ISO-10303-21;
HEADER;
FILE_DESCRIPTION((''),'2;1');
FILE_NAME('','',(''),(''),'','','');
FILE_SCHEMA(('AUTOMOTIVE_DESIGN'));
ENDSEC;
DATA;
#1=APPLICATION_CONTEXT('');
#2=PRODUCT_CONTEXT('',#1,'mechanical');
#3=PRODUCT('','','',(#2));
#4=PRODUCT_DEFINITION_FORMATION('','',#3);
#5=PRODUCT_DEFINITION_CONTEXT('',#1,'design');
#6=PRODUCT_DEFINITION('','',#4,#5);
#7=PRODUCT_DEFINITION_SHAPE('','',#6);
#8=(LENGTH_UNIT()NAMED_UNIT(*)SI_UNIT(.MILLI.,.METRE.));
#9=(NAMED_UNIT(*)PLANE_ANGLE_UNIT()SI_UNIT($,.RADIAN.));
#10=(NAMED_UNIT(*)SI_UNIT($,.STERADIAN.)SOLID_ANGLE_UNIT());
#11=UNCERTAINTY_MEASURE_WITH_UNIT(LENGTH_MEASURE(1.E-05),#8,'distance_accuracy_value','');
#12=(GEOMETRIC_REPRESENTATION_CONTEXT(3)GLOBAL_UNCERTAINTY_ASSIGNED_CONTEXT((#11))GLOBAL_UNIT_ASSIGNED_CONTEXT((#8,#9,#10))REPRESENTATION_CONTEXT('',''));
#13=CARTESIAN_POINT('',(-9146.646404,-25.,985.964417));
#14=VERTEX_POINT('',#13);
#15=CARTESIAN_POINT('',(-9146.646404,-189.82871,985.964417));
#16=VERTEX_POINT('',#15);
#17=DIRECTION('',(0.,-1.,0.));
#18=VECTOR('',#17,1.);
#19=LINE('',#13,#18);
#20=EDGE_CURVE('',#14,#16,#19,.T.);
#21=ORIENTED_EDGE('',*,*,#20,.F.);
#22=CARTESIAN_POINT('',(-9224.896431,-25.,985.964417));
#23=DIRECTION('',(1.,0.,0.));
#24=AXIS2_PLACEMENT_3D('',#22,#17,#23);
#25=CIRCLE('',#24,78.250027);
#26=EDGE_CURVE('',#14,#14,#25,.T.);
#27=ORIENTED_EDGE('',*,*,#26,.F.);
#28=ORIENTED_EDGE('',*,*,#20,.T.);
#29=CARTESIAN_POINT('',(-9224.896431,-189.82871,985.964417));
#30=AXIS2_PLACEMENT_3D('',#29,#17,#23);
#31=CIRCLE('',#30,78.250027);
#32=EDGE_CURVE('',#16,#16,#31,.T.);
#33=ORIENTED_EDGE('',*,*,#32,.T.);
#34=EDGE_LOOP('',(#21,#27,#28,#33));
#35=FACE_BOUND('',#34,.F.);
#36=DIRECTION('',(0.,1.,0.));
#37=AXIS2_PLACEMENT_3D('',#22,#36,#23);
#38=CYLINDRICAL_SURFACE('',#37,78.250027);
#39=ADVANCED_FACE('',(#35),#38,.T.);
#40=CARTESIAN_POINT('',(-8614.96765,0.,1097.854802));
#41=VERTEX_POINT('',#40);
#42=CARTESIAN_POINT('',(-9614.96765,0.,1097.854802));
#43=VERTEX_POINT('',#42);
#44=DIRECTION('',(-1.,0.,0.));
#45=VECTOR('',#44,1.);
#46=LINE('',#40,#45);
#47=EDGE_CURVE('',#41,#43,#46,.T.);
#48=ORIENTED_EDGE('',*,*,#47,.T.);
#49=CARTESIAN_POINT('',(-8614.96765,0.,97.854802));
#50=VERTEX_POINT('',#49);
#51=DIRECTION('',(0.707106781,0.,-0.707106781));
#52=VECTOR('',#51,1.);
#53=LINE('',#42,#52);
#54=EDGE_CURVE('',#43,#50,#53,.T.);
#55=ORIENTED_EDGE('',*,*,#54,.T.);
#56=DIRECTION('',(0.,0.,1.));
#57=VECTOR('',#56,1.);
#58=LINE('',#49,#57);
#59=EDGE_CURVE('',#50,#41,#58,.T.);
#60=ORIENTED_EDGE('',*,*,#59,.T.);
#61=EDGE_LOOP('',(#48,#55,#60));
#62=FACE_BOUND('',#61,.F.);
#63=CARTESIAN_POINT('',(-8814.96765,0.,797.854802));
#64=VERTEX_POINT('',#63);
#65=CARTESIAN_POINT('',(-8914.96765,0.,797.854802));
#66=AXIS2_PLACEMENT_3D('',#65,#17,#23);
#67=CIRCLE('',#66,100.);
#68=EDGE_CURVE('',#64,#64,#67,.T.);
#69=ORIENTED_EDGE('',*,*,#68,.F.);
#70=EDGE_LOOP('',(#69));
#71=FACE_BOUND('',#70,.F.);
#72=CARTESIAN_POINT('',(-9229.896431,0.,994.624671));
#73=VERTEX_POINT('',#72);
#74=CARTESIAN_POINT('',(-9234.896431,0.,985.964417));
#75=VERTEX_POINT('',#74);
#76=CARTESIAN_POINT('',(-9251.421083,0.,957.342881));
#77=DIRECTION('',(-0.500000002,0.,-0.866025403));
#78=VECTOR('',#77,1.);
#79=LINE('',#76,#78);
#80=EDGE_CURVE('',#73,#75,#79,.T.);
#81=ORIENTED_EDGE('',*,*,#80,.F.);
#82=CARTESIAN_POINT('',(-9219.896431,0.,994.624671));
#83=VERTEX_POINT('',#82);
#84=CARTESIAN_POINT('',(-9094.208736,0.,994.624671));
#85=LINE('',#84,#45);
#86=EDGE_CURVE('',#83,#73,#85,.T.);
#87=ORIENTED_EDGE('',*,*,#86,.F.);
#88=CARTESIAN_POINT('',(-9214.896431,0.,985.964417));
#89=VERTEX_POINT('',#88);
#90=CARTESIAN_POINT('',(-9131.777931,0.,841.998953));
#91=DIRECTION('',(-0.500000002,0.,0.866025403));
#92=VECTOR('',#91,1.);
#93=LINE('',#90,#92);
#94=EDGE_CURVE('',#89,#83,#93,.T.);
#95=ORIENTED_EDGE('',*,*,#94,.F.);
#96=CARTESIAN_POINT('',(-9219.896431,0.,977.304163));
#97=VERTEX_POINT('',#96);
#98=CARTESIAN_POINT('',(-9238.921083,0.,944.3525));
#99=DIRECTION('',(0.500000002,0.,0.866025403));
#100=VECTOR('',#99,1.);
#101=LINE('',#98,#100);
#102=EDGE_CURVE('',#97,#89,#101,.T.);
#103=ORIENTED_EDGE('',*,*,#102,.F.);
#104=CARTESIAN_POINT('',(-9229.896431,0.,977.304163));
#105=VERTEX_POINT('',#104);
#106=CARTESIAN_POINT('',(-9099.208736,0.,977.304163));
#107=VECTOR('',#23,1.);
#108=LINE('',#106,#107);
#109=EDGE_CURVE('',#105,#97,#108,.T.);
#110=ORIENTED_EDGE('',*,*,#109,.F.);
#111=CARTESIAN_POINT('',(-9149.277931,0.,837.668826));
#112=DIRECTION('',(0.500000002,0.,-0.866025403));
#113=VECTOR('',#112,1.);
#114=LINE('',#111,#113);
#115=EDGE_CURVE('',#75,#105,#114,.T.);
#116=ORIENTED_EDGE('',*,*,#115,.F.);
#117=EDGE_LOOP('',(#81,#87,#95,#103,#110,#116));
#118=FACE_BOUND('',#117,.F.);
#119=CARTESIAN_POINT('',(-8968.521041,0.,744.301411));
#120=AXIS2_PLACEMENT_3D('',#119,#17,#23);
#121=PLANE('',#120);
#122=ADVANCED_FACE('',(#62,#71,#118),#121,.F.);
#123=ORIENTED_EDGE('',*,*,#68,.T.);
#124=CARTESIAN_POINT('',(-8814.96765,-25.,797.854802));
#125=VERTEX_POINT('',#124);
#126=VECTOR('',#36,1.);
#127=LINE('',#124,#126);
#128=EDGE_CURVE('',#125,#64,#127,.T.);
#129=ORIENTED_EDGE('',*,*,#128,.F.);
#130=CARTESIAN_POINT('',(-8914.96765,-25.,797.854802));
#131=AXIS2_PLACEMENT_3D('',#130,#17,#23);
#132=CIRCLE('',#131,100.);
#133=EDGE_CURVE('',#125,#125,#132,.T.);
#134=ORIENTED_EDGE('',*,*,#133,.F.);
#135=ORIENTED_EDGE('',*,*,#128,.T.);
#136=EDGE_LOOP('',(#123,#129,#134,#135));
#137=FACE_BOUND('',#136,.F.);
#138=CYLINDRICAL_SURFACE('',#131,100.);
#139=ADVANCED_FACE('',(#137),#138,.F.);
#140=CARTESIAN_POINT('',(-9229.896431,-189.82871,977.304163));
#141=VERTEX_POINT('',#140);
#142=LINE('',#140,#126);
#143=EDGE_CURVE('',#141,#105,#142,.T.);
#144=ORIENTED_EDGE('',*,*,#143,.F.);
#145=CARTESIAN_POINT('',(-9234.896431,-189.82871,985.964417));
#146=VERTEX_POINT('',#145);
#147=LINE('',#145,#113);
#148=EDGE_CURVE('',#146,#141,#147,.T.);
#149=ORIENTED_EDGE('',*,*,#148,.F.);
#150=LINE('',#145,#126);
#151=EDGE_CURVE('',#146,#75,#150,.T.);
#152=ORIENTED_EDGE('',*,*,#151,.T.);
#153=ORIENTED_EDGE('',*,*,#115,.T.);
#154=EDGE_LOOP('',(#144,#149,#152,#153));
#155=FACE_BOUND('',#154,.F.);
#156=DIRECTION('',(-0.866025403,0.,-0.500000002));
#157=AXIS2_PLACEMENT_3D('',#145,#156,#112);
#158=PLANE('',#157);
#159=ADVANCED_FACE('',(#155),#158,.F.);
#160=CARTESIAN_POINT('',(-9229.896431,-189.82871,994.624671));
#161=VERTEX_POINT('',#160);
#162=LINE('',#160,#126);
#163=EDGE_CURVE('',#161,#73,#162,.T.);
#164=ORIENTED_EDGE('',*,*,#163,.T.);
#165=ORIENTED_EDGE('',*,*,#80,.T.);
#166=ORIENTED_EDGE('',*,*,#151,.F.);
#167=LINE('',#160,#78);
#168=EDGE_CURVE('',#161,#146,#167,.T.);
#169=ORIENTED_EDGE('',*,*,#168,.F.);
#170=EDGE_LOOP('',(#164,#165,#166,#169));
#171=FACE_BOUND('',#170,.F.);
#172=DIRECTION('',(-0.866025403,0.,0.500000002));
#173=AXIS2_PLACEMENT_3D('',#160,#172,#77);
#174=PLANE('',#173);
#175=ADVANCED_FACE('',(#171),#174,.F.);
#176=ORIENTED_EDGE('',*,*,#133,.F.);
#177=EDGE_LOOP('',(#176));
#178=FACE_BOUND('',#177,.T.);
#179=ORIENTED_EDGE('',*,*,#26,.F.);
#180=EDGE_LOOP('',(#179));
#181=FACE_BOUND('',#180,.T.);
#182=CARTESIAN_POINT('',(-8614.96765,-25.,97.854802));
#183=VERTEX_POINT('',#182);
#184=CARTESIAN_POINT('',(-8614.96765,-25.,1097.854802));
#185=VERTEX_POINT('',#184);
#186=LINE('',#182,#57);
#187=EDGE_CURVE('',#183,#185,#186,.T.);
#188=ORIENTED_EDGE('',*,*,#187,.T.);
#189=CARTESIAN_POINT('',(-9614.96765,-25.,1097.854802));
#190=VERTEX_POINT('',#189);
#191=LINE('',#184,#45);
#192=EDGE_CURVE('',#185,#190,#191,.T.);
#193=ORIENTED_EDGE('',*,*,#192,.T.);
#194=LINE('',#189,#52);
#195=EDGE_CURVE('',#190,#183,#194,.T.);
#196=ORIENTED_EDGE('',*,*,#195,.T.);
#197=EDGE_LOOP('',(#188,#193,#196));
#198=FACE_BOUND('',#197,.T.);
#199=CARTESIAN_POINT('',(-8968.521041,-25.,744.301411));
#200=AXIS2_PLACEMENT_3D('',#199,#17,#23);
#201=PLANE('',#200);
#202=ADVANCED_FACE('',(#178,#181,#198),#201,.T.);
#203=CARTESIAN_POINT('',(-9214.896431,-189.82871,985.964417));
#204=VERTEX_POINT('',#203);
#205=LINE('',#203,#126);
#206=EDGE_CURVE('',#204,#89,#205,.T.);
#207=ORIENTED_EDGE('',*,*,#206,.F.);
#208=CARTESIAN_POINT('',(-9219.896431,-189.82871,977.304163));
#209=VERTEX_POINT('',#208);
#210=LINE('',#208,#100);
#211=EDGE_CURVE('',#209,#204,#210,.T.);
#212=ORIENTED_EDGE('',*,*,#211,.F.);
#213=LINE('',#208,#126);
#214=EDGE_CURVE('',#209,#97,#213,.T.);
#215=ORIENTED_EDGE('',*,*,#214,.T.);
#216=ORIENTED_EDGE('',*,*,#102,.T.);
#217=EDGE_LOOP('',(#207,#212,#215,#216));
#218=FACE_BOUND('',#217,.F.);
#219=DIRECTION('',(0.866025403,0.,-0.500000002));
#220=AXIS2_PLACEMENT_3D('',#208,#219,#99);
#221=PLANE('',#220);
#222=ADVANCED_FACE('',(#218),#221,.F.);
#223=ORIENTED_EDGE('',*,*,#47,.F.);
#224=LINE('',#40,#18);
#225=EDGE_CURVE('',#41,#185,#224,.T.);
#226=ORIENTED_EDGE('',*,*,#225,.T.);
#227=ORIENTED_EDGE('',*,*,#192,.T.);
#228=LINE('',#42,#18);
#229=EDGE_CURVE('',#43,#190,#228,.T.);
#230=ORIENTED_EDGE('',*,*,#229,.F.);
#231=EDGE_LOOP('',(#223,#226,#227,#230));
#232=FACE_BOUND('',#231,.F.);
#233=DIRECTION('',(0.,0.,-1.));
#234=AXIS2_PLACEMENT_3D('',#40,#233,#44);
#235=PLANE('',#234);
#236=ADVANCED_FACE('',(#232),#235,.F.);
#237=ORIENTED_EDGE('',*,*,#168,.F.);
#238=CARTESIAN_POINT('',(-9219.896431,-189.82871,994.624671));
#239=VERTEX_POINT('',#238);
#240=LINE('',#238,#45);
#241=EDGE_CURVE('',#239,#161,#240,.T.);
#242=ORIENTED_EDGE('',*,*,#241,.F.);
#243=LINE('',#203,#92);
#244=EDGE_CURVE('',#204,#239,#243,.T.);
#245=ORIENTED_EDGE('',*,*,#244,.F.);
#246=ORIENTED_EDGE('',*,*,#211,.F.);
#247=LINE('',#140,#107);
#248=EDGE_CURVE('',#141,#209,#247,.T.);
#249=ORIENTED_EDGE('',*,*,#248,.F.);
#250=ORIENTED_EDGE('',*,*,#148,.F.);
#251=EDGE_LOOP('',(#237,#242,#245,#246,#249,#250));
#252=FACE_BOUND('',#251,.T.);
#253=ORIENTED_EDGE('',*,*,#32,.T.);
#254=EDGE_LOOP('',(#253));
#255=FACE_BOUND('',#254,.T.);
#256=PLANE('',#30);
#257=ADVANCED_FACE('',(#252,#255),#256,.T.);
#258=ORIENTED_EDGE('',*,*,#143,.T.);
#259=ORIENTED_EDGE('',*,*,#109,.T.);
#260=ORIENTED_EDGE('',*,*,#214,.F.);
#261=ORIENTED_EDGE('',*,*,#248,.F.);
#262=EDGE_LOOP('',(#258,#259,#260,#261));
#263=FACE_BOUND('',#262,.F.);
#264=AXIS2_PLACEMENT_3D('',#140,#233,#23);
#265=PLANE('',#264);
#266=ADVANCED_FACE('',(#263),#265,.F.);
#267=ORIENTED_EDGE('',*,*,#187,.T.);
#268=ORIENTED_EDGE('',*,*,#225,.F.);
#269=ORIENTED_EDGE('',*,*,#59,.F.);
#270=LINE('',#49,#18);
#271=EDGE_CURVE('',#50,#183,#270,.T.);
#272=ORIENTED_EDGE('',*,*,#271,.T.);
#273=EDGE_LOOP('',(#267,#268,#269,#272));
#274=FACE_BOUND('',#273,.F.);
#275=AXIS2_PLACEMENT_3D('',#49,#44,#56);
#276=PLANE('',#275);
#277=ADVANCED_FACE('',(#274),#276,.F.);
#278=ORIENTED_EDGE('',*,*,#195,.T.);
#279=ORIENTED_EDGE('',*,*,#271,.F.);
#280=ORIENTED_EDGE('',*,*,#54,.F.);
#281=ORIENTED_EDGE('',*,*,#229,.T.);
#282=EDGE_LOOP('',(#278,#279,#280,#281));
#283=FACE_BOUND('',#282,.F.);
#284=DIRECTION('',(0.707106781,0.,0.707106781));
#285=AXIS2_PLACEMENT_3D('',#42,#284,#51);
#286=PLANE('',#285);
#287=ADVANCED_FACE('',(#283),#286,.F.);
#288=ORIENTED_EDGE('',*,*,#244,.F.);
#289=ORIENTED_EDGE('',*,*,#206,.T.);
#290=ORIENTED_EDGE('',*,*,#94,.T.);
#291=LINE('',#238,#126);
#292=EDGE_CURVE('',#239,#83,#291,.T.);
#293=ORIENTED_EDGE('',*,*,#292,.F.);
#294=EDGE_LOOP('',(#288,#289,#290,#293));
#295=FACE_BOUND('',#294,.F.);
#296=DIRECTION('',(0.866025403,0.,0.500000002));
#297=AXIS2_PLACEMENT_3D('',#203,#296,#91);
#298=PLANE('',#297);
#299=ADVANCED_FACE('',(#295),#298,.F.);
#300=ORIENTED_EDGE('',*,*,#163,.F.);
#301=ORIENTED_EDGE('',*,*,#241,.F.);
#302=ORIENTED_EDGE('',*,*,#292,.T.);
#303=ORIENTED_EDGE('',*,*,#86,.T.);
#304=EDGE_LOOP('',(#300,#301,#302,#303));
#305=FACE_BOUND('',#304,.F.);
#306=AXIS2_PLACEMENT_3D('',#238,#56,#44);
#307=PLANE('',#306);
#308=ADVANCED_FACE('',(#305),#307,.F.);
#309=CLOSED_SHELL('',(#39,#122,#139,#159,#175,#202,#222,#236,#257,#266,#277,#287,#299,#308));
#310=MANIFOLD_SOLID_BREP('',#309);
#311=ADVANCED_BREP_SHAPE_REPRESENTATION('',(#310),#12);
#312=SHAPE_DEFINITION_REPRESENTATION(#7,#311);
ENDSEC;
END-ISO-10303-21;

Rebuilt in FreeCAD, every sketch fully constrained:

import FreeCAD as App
import Part
import Sketcher
from FreeCAD import Vector
Q = App.Units.Quantity


def add_polygon(sketch, points):
    """Adds a closed chain of lines whose ends are joined by coincident constraints."""
    first, n = sketch.GeometryCount, len(points)
    for a, b in zip(points, points[1:] + points[:1]):
        sketch.addGeometry(Part.LineSegment(App.Vector(*a, 0), App.Vector(*b, 0)), False)
    for i in range(n):
        sketch.addConstraint(Sketcher.Constraint("Coincident", first + i, 2, first + (i + 1) % n, 1))

doc = App.newDocument("Part")
params = doc.addObject("Spreadsheet::Sheet", "Params")
for row, (alias, value) in enumerate([
    ("sketch1_width", "1000 mm"),
    ("pad1_length", "25 mm"),
    ("sketch2_diameter", "200 mm"),
    ("pad2_length", "164.82871 mm"),
    ("sketch4_width", "10 mm"),
    ("sketch4_length", "10 mm"),
], start=1):
    params.set(f"A{row}", alias)
    params.set(f"B{row}", "=" + value)
    params.setAlias(f"B{row}", alias)

body = doc.addObject("PartDesign::Body", "Body")

sketch1 = body.newObject("Sketcher::SketchObject", "Sketch")
sketch1.AttachmentSupport = (doc.getObject("XZ_Plane"), [""])
sketch1.MapMode = "FlatFace"
add_polygon(sketch1, [(-8615, 1098), (-9615, 1098), (-8615, 98)])
sketch1.addConstraint([
    Sketcher.Constraint("Horizontal", 0),
    Sketcher.Constraint("Vertical", 2),
    Sketcher.Constraint("Equal", 0, 2),
    Sketcher.Constraint("DistanceX", 0, 2, 0, 1, Q("1000 mm")),
    Sketcher.Constraint("DistanceY", -1, 1, 0, 2, Q("1097.854802 mm")),
    Sketcher.Constraint("DistanceX", 0, 2, -1, 1, Q("9614.96765 mm")),
])
sketch1.setExpression("Constraints[6]", "Params.sketch1_width")
pad1 = body.newObject("PartDesign::Pad", "Pad")
pad1.Profile = sketch1
pad1.setExpression("Length", "Params.pad1_length")

sketch2 = body.newObject("Sketcher::SketchObject", "Sketch001")
sketch2.AttachmentSupport = (doc.getObject("XZ_Plane"), [""])
sketch2.MapMode = "FlatFace"
sketch2.AttachmentOffset = App.Placement(Vector(0, 0, 25), App.Rotation())
sketch2.addGeometry(Part.Circle(Vector(-8915, 798, 0), Vector(0, 0, 1), 100), False)
sketch2.addConstraint([
    Sketcher.Constraint("Diameter", 0, Q("200 mm")),
    Sketcher.Constraint("DistanceY", -1, 1, 0, 3, Q("797.854802 mm")),
    Sketcher.Constraint("DistanceX", 0, 3, -1, 1, Q("8914.96765 mm")),
])
sketch2.setExpression("Constraints[0]", "Params.sketch2_diameter")
pocket1 = body.newObject("PartDesign::Pocket", "Pocket")
pocket1.Profile = sketch2
pocket1.Type = "ThroughAll"

sketch3 = body.newObject("Sketcher::SketchObject", "Sketch002")
sketch3.AttachmentSupport = (doc.getObject("XZ_Plane"), [""])
sketch3.MapMode = "FlatFace"
sketch3.AttachmentOffset = App.Placement(Vector(0, 0, 25), App.Rotation())
sketch3.addGeometry(Part.Circle(Vector(-9225, 986, 0), Vector(0, 0, 1), 78), False)
sketch3.addConstraint([
    Sketcher.Constraint("Diameter", 0, Q("156.500054 mm")),
    Sketcher.Constraint("DistanceX", 0, 3, -1, 1, Q("9224.896431 mm")),
    Sketcher.Constraint("DistanceY", -1, 1, 0, 3, Q("985.964417 mm")),
])
pad2 = body.newObject("PartDesign::Pad", "Pad001")
pad2.Profile = sketch3
pad2.setExpression("Length", "Params.pad2_length")

sketch4 = body.newObject("Sketcher::SketchObject", "Sketch003")
sketch4.AttachmentSupport = (doc.getObject("XZ_Plane"), [""])
sketch4.MapMode = "FlatFace"
sketch4.AttachmentOffset = App.Placement(Vector(0, 0, 189.82871), App.Rotation())
add_polygon(sketch4, [(-9230, 977), (-9220, 977), (-9215, 986), (-9220, 995), (-9230, 995), (-9235, 986)])
sketch4.addConstraint([
    Sketcher.Constraint("Horizontal", 0),
    Sketcher.Constraint("Horizontal", 3),
    Sketcher.Constraint("Parallel", 1, 4),
    Sketcher.Constraint("Parallel", 2, 5),
    Sketcher.Constraint("Horizontal", 1, 2, 4, 2),
    Sketcher.Constraint("Vertical", 0, 2, 2, 2),
    Sketcher.Constraint("Vertical", 3, 2, 5, 2),
    Sketcher.Constraint("DistanceX", 0, 1, 0, 2, Q("10 mm")),
    Sketcher.Constraint("Angle", 1, Q("60 deg")),
    Sketcher.Constraint("Distance", 1, Q("10 mm")),
    Sketcher.Constraint("DistanceX", 0, 2, -1, 1, Q("9219.896431 mm")),
    Sketcher.Constraint("DistanceY", -1, 1, 2, 2, Q("994.624671 mm")),
])
sketch4.setExpression("Constraints[13]", "Params.sketch4_width")
sketch4.setExpression("Constraints[15]", "Params.sketch4_length")
pocket2 = body.newObject("PartDesign::Pocket", "Pocket001")
pocket2.Profile = sketch4
pocket2.Type = "ThroughAll"

doc.recompute()
